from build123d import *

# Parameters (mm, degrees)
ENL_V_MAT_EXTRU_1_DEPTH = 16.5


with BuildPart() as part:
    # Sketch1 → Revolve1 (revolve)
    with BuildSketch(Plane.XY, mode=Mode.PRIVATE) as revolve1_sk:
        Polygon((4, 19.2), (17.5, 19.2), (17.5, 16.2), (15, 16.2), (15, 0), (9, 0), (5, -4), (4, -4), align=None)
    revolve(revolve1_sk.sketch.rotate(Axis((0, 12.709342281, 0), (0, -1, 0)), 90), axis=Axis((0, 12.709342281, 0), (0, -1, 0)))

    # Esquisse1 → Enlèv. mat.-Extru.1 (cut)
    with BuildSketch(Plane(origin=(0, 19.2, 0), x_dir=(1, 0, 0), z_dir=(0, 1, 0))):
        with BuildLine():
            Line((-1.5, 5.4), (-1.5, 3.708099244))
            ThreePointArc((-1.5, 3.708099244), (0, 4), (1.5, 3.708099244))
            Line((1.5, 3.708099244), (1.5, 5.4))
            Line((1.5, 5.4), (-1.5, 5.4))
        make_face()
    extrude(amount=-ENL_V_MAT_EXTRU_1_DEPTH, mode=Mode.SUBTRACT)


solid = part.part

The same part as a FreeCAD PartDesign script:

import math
import FreeCAD as App
import Part
import Sketcher

V = App.Vector
Q = App.Units.Quantity

doc = App.newDocument("Part")
body = doc.addObject("PartDesign::Body", "Body")

# Sketch on XY plane
sketch1 = doc.addObject("Sketcher::SketchObject", "Sketch")
body.addObject(sketch1)
sketch1.AttachmentSupport = (doc.XY_Plane, [""])
sketch1.MapMode = "FlatFace"
sketch1.addGeometry([
    Part.LineSegment(V(17.5, 19.2, 0), V(4, 19.2, 0)),  # 0
    Part.LineSegment(V(4, 19.2, 0), V(4, -4, 0)),  # 1
    Part.LineSegment(V(4, -4, 0), V(5, -4, 0)),  # 2
    Part.LineSegment(V(5, -4, 0), V(9, 0, 0)),  # 3
    Part.LineSegment(V(9, 0, 0), V(15, 0, 0)),  # 4
    Part.LineSegment(V(15, 0, 0), V(15, 16.2, 0)),  # 5
    Part.LineSegment(V(15, 16.2, 0), V(17.5, 16.2, 0)),  # 6
    Part.LineSegment(V(17.5, 16.2, 0), V(17.5, 19.2, 0)),  # 7
], False)
sketch1.addConstraint([
    Sketcher.Constraint("Coincident", 0, 2, 1, 1),
    Sketcher.Constraint("Coincident", 1, 2, 2, 1),
    Sketcher.Constraint("Coincident", 2, 2, 3, 1),
    Sketcher.Constraint("Coincident", 3, 2, 4, 1),
    Sketcher.Constraint("Coincident", 4, 2, 5, 1),
    Sketcher.Constraint("Coincident", 5, 2, 6, 1),
    Sketcher.Constraint("Coincident", 6, 2, 7, 1),
    Sketcher.Constraint("Coincident", 7, 2, 0, 1),
    Sketcher.Constraint("Horizontal", 0),
    Sketcher.Constraint("Vertical", 1),
    Sketcher.Constraint("Horizontal", 2),
    Sketcher.Constraint("Horizontal", 4),
    Sketcher.Constraint("Vertical", 5),
    Sketcher.Constraint("Horizontal", 6),
    Sketcher.Constraint("Vertical", 7),
    Sketcher.Constraint("PointOnObject", 3, 2, -1),
    Sketcher.Constraint("DistanceX", 2, 1, 2, 2, 1.0),
    Sketcher.Constraint("DistanceX", 4, 1, 4, 2, 6.0),
    Sketcher.Constraint("DistanceY", 7, 1, 7, 2, 3.0),
    Sketcher.Constraint("Angle", 3, Q("45 deg")),
    Sketcher.Constraint("DistanceX", 0, 2, 0, 1, 13.5),
    Sketcher.Constraint("DistanceX", 6, 1, 6, 2, 2.5),
    Sketcher.Constraint("DistanceY", 1, 2, 1, 1, 23.2),
    Sketcher.Constraint("DistanceX", -1, 1, 0, 2, 4.0),
])
revolution = doc.addObject("PartDesign::Revolution", "Revolution")
body.addObject(revolution)
revolution.Profile = sketch1
revolution.ReferenceAxis = (sketch1, ["V_Axis"])
revolution.Angle = 360

# Sketch on XZ plane
sketch2 = doc.addObject("Sketcher::SketchObject", "Sketch001")
body.addObject(sketch2)
sketch2.AttachmentSupport = (doc.XZ_Plane, [""])
sketch2.MapMode = "FlatFace"
sketch2.AttachmentOffset = App.Placement(V(0, 0, -19.2), App.Rotation())
sketch2.addGeometry([
    Part.LineSegment(V(-1.5, -5.4, 0), V(-1.5, -3.7, 0)),
    Part.ArcOfCircle(Part.Circle(V(0, 0, 0), V(0, 0, 1), 4), math.radians(-112), math.radians(-68)),
    Part.LineSegment(V(1.5, -3.7, 0), V(1.5, -5.4, 0)),
    Part.LineSegment(V(1.5, -5.4, 0), V(-1.5, -5.4, 0)),
], False)
sketch2.addConstraint([
    Sketcher.Constraint("Coincident", 0, 2, 1, 1),
    Sketcher.Constraint("Coincident", 1, 2, 2, 1),
    Sketcher.Constraint("Coincident", 2, 2, 3, 1),
    Sketcher.Constraint("Coincident", 3, 2, 0, 1),
    Sketcher.Constraint("Vertical", 0),
    Sketcher.Constraint("Vertical", 2),
    Sketcher.Constraint("Horizontal", 3),
    Sketcher.Constraint("Coincident", 1, 3, -1, 1),
    Sketcher.Constraint("Horizontal", 0, 2, 1, 2),
    Sketcher.Constraint("Radius", 1, 4.0),
    Sketcher.Constraint("DistanceX", 3, 2, 3, 1, 3.0),
    Sketcher.Constraint("DistanceY", 2, 2, -1, 1, 5.4),
])
pocket1 = doc.addObject("PartDesign::Pocket", "Pocket")
body.addObject(pocket1)
pocket1.Profile = sketch2
pocket1.Length = 16.5
pocket1.Reversed = True

doc.recompute()
